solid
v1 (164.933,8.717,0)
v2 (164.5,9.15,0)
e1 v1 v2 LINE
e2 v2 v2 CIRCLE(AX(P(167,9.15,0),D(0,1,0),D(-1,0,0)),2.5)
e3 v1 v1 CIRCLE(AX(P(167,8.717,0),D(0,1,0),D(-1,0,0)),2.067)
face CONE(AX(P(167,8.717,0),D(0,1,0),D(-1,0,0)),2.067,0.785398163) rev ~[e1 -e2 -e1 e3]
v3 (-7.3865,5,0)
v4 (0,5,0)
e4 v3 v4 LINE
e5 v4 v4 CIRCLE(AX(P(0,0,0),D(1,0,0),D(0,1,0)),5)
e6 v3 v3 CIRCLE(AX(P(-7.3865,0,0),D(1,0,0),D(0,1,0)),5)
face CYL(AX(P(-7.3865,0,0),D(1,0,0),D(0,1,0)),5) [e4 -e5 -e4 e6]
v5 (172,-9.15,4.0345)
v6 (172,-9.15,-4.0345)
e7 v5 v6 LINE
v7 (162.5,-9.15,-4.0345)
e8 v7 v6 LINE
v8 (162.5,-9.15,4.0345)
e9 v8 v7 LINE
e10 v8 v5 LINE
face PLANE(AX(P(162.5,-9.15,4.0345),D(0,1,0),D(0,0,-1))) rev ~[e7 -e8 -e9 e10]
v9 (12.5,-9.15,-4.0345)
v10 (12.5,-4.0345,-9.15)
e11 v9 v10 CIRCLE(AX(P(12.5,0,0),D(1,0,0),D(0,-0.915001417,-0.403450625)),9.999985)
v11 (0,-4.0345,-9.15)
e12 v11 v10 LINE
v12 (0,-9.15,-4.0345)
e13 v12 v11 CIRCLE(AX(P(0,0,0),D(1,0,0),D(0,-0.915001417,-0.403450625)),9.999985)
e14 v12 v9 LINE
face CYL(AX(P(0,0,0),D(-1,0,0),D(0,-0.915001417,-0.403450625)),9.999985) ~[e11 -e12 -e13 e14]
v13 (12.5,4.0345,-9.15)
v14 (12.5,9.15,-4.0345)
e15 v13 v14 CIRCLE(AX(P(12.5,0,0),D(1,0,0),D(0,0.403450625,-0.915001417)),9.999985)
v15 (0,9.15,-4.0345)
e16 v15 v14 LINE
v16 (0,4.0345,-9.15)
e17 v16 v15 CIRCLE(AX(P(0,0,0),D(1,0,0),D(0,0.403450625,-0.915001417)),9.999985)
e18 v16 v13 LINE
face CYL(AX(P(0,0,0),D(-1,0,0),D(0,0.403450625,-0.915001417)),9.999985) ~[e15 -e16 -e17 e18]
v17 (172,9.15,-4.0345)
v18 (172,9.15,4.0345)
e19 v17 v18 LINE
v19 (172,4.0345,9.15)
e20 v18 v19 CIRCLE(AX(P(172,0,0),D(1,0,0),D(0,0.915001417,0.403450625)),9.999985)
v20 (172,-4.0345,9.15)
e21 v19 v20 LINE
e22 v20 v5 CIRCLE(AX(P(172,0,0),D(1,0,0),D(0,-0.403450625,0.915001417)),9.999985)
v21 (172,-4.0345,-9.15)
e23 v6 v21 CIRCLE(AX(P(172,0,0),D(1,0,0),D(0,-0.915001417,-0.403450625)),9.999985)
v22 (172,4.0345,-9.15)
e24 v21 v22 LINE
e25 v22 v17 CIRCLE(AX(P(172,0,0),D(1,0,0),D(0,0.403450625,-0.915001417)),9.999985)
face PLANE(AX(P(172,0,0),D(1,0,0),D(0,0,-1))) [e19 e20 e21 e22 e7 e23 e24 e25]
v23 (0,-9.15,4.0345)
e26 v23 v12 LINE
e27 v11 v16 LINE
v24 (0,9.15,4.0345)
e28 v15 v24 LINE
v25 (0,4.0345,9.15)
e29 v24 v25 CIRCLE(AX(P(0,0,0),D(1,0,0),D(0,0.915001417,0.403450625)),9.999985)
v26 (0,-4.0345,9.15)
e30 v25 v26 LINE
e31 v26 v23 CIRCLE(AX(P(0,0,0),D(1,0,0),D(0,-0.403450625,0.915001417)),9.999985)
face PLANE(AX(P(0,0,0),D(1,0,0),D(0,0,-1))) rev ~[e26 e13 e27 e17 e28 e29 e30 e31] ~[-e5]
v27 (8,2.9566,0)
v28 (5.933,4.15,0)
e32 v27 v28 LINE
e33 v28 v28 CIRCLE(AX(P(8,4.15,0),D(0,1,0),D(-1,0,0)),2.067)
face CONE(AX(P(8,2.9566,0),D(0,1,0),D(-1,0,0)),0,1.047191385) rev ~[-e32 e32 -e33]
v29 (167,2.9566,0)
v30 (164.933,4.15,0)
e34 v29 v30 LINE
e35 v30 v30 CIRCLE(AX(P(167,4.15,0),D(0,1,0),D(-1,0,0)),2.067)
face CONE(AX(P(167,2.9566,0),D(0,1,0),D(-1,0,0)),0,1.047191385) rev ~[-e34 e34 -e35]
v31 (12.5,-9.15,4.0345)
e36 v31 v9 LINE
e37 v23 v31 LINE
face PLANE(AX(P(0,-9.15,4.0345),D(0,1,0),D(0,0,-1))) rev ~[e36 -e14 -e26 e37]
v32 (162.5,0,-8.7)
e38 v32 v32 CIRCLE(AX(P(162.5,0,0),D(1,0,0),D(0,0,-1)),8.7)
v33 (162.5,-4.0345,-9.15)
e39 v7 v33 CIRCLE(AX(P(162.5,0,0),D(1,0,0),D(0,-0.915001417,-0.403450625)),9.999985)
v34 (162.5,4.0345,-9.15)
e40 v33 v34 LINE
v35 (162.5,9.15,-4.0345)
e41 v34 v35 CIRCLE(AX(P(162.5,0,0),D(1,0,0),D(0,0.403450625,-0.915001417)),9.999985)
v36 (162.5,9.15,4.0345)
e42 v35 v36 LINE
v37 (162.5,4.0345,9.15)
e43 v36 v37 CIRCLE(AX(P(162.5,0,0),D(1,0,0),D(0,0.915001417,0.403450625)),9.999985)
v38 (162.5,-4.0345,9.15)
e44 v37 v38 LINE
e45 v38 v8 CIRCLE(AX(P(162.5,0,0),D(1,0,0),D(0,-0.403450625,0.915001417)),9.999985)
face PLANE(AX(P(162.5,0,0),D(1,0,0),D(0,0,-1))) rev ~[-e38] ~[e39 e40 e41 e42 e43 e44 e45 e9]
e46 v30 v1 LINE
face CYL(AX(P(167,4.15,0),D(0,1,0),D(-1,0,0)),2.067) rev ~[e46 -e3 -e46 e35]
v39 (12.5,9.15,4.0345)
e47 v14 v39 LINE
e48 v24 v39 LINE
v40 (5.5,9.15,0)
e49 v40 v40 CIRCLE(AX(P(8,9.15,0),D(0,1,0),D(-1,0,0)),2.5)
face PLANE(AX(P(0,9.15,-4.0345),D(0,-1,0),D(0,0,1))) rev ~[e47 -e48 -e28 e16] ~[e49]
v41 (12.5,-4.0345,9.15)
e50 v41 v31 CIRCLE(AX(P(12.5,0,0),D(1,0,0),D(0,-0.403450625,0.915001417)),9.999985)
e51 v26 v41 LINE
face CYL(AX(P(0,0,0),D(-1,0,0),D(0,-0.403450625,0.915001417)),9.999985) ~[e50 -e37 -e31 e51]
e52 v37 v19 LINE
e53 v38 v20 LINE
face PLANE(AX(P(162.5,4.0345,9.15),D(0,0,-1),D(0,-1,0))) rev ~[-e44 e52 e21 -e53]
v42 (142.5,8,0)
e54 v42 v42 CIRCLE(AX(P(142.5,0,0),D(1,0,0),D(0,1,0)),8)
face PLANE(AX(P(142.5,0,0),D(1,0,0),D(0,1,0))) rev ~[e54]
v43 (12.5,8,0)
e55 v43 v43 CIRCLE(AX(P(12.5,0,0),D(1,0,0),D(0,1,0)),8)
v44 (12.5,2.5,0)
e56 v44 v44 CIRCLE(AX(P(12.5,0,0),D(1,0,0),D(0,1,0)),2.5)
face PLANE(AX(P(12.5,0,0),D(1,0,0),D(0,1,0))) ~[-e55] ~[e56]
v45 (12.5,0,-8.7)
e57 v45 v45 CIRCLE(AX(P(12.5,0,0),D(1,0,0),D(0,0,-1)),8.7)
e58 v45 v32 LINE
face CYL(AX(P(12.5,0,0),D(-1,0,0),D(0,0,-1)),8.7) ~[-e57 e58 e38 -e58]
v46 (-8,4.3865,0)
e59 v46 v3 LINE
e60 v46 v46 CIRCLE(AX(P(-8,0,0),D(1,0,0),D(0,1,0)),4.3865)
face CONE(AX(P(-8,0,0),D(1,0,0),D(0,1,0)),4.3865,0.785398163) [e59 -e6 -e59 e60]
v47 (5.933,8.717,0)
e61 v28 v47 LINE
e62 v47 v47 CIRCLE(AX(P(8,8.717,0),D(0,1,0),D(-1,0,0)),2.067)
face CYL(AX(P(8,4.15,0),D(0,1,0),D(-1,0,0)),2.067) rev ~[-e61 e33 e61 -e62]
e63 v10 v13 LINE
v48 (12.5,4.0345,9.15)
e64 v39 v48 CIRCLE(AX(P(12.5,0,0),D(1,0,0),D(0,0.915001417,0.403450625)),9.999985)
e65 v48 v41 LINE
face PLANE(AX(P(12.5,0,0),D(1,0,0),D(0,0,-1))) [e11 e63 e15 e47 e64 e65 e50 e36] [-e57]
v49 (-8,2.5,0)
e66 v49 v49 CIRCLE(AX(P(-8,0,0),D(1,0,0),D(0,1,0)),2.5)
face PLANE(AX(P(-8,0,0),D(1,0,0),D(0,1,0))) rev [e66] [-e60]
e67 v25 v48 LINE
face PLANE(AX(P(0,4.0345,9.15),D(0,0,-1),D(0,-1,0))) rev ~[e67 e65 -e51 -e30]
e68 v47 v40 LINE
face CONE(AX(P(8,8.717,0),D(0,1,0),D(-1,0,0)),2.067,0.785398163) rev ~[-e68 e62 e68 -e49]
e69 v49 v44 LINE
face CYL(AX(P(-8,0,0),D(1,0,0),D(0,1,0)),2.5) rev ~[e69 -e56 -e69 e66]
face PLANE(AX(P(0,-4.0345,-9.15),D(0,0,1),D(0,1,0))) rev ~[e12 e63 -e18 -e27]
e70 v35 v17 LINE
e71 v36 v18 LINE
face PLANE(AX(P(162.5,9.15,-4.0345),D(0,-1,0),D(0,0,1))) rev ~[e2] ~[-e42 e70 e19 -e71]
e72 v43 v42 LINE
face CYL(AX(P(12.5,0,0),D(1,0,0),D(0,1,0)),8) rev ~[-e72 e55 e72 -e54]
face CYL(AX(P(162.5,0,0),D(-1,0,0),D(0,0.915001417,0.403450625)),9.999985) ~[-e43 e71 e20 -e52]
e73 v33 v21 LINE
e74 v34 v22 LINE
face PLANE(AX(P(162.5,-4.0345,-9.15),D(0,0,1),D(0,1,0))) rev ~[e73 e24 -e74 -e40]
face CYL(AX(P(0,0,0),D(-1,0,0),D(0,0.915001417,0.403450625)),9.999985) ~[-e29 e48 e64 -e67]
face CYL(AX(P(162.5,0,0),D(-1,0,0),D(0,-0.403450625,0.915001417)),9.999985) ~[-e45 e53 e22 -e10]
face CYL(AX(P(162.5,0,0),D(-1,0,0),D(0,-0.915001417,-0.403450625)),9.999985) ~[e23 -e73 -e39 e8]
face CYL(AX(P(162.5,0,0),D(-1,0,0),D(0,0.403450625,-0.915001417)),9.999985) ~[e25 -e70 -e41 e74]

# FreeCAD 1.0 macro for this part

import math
import FreeCAD as App
import Part
import Sketcher

V = App.Vector
Q = App.Units.Quantity

doc = App.newDocument("Part")
body = doc.addObject("PartDesign::Body", "Body")

# Sketch on XY plane
sketch1 = body.newObject("Sketcher::SketchObject", "Sketch")
sketch1.AttachmentSupport = (doc.getObject("XY_Plane"), [""])
sketch1.MapMode = "FlatFace"
sketch1.addGeometry(Part.LineSegment(V(-8, 0, 0), V(0, 0, 0)), False)
sketch1.addGeometry(Part.LineSegment(V(0, 0, 0), V(0, 5, 0)), False)
sketch1.addGeometry(Part.LineSegment(V(0, 5, 0), V(-7.4, 5, 0)), False)
sketch1.addGeometry(Part.LineSegment(V(-7.4, 5, 0), V(-8, 4.4, 0)), False)
sketch1.addGeometry(Part.LineSegment(V(-8, 4.4, 0), V(-8, 0, 0)), False)
sketch1.addConstraint(Sketcher.Constraint("Coincident", 0, 2, 1, 1))
sketch1.addConstraint(Sketcher.Constraint("Coincident", 1, 2, 2, 1))
sketch1.addConstraint(Sketcher.Constraint("Coincident", 2, 2, 3, 1))
sketch1.addConstraint(Sketcher.Constraint("Coincident", 3, 2, 4, 1))
sketch1.addConstraint(Sketcher.Constraint("Coincident", 4, 2, 0, 1))
sketch1.addConstraint(Sketcher.Constraint("Horizontal", 0))
sketch1.addConstraint(Sketcher.Constraint("Vertical", 1))
sketch1.addConstraint(Sketcher.Constraint("Horizontal", 2))
sketch1.addConstraint(Sketcher.Constraint("Vertical", 4))
sketch1.addConstraint(Sketcher.Constraint("Coincident", 0, 2, -1, 1))
sketch1.addConstraint(Sketcher.Constraint("DistanceX", 0, 1, 0, 2, Q("8 mm")))
sketch1.addConstraint(Sketcher.Constraint("DistanceY", 1, 1, 1, 2, Q("5 mm")))
sketch1.addConstraint(Sketcher.Constraint("Angle", 3, Q("-135 deg")))
sketch1.addConstraint(Sketcher.Constraint("DistanceX", 2, 2, 2, 1, Q("7.3865 mm")))
revolution = body.newObject("PartDesign::Revolution", "Revolution")
revolution.Profile = sketch1
revolution.ReferenceAxis = (sketch1, ["H_Axis"])
revolution.Angle = 360

# Sketch on YZ plane
sketch2 = body.newObject("Sketcher::SketchObject", "Sketch001")
sketch2.AttachmentSupport = (doc.getObject("YZ_Plane"), [""])
sketch2.MapMode = "FlatFace"
sketch2.addGeometry(Part.ArcOfCircle(Part.Circle(V(0, 0, 0), V(0, 0, 1), 10), math.radians(24), math.radians(66)), False)
sketch2.addGeometry(Part.LineSegment(V(4, 9, 0), V(-4, 9, 0)), False)
sketch2.addGeometry(Part.ArcOfCircle(Part.Circle(V(0, 0, 0), V(0, 0, 1), 10), math.radians(114), math.radians(156)), False)
sketch2.addGeometry(Part.LineSegment(V(-9, 4, 0), V(-9, -4, 0)), False)
sketch2.addGeometry(Part.ArcOfCircle(Part.Circle(V(0, 0, 0), V(0, 0, 1), 10), math.radians(-156), math.radians(-114)), False)
sketch2.addGeometry(Part.LineSegment(V(-4, -9, 0), V(4, -9, 0)), False)
sketch2.addGeometry(Part.ArcOfCircle(Part.Circle(V(0, 0, 0), V(0, 0, 1), 10), math.radians(-66), math.radians(-24)), False)
sketch2.addGeometry(Part.LineSegment(V(9, -4, 0), V(9, 4, 0)), False)
sketch2.addConstraint(Sketcher.Constraint("Coincident", 0, 2, 1, 1))
sketch2.addConstraint(Sketcher.Constraint("Coincident", 1, 2, 2, 1))
sketch2.addConstraint(Sketcher.Constraint("Coincident", 2, 2, 3, 1))
sketch2.addConstraint(Sketcher.Constraint("Coincident", 3, 2, 4, 1))
sketch2.addConstraint(Sketcher.Constraint("Coincident", 4, 2, 5, 1))
sketch2.addConstraint(Sketcher.Constraint("Coincident", 5, 2, 6, 1))
sketch2.addConstraint(Sketcher.Constraint("Coincident", 6, 2, 7, 1))
sketch2.addConstraint(Sketcher.Constraint("Coincident", 7, 2, 0, 1))
sketch2.addConstraint(Sketcher.Constraint("Horizontal", 1))
sketch2.addConstraint(Sketcher.Constraint("Vertical", 3))
sketch2.addConstraint(Sketcher.Constraint("Horizontal", 5))
sketch2.addConstraint(Sketcher.Constraint("Vertical", 7))
sketch2.addConstraint(Sketcher.Constraint("Coincident", 0, 3, -1, 1))
sketch2.addConstraint(Sketcher.Constraint("Coincident", 2, 3, -1, 1))
sketch2.addConstraint(Sketcher.Constraint("Coincident", 4, 3, -1, 1))
sketch2.addConstraint(Sketcher.Constraint("Coincident", 6, 3, -1, 1))
sketch2.addConstraint(Sketcher.Constraint("Equal", 0, 2))
sketch2.addConstraint(Sketcher.Constraint("Equal", 2, 4))
sketch2.addConstraint(Sketcher.Constraint("Equal", 4, 6))
sketch2.addConstraint(Sketcher.Constraint("Horizontal", 3, 2, 6, 2))
sketch2.addConstraint(Sketcher.Constraint("Vertical", 1, 2, 4, 2))
sketch2.addConstraint(Sketcher.Constraint("Equal", 5, 3))
sketch2.addConstraint(Sketcher.Constraint("Radius", 0, Q("10 mm")))
sketch2.addConstraint(Sketcher.Constraint("DistanceX", 1, 2, 1, 1, Q("8.069 mm")))
pad1 = body.newObject("PartDesign::Pad", "Pad")
pad1.Profile = sketch2
pad1.Length = 12.5

# Sketch on YZ plane
sketch3 = body.newObject("Sketcher::SketchObject", "Sketch002")
sketch3.AttachmentSupport = (doc.getObject("YZ_Plane"), [""])
sketch3.MapMode = "FlatFace"
sketch3.AttachmentOffset = App.Placement(V(0, 0, 12.5), App.Rotation())
sketch3.addGeometry(Part.Circle(V(0, 0, 0), V(0, 0, 1), 9), False)
sketch3.addConstraint(Sketcher.Constraint("Coincident", 0, 3, -1, 1))
sketch3.addConstraint(Sketcher.Constraint("Diameter", 0, Q("17.4 mm")))
pad2 = body.newObject("PartDesign::Pad", "Pad001")
pad2.Profile = sketch3
pad2.Length = 150

# Sketch on YZ plane
sketch4 = body.newObject("Sketcher::SketchObject", "Sketch003")
sketch4.AttachmentSupport = (doc.getObject("YZ_Plane"), [""])
sketch4.MapMode = "FlatFace"
sketch4.AttachmentOffset = App.Placement(V(0, 0, 162.5), App.Rotation())
sketch4.addGeometry(Part.ArcOfCircle(Part.Circle(V(0, 0, 0), V(0, 0, 1), 10), math.radians(24), math.radians(66)), False)
sketch4.addGeometry(Part.LineSegment(V(4, 9, 0), V(-4, 9, 0)), False)
sketch4.addGeometry(Part.ArcOfCircle(Part.Circle(V(0, 0, 0), V(0, 0, 1), 10), math.radians(114), math.radians(156)), False)
sketch4.addGeometry(Part.LineSegment(V(-9, 4, 0), V(-9, -4, 0)), False)
sketch4.addGeometry(Part.ArcOfCircle(Part.Circle(V(0, 0, 0), V(0, 0, 1), 10), math.radians(-156), math.radians(-114)), False)
sketch4.addGeometry(Part.LineSegment(V(-4, -9, 0), V(4, -9, 0)), False)
sketch4.addGeometry(Part.ArcOfCircle(Part.Circle(V(0, 0, 0), V(0, 0, 1), 10), math.radians(-66), math.radians(-24)), False)
sketch4.addGeometry(Part.LineSegment(V(9, -4, 0), V(9, 4, 0)), False)
sketch4.addConstraint(Sketcher.Constraint("Coincident", 0, 2, 1, 1))
sketch4.addConstraint(Sketcher.Constraint("Coincident", 1, 2, 2, 1))
sketch4.addConstraint(Sketcher.Constraint("Coincident", 2, 2, 3, 1))
sketch4.addConstraint(Sketcher.Constraint("Coincident", 3, 2, 4, 1))
sketch4.addConstraint(Sketcher.Constraint("Coincident", 4, 2, 5, 1))
sketch4.addConstraint(Sketcher.Constraint("Coincident", 5, 2, 6, 1))
sketch4.addConstraint(Sketcher.Constraint("Coincident", 6, 2, 7, 1))
sketch4.addConstraint(Sketcher.Constraint("Coincident", 7, 2, 0, 1))
sketch4.addConstraint(Sketcher.Constraint("Horizontal", 1))
sketch4.addConstraint(Sketcher.Constraint("Vertical", 3))
sketch4.addConstraint(Sketcher.Constraint("Horizontal", 5))
sketch4.addConstraint(Sketcher.Constraint("Vertical", 7))
sketch4.addConstraint(Sketcher.Constraint("Coincident", 0, 3, -1, 1))
sketch4.addConstraint(Sketcher.Constraint("Coincident", 2, 3, -1, 1))
sketch4.addConstraint(Sketcher.Constraint("Coincident", 4, 3, -1, 1))
sketch4.addConstraint(Sketcher.Constraint("Coincident", 6, 3, -1, 1))
sketch4.addConstraint(Sketcher.Constraint("Equal", 0, 2))
sketch4.addConstraint(Sketcher.Constraint("Equal", 2, 4))
sketch4.addConstraint(Sketcher.Constraint("Equal", 4, 6))
sketch4.addConstraint(Sketcher.Constraint("Horizontal", 3, 2, 6, 2))
sketch4.addConstraint(Sketcher.Constraint("Vertical", 1, 2, 4, 2))
sketch4.addConstraint(Sketcher.Constraint("Equal", 5, 3))
sketch4.addConstraint(Sketcher.Constraint("Radius", 0, Q("10 mm")))
sketch4.addConstraint(Sketcher.Constraint("DistanceX", 1, 2, 1, 1, Q("8.069 mm")))
pad3 = body.newObject("PartDesign::Pad", "Pad002")
pad3.Profile = sketch4
pad3.Length = 9.5

# Sketch on XY plane
sketch5 = body.newObject("Sketcher::SketchObject", "Sketch004")
sketch5.AttachmentSupport = (doc.getObject("XY_Plane"), [""])
sketch5.MapMode = "FlatFace"
sketch5.addGeometry(Part.LineSegment(V(8, 3, 0), V(8, 9.2, 0)), False)
sketch5.addGeometry(Part.LineSegment(V(8, 9.2, 0), V(5.5, 9.2, 0)), False)
sketch5.addGeometry(Part.LineSegment(V(5.5, 9.2, 0), V(5.9, 8.7, 0)), False)
sketch5.addGeometry(Part.LineSegment(V(5.9, 8.7, 0), V(5.9, 4.2, 0)), False)
sketch5.addGeometry(Part.LineSegment(V(5.9, 4.2, 0), V(8, 3, 0)), False)
sketch5.addGeometry(Part.LineSegment(V(8, 3, 0), V(8, 9.2, 0)), True)  # axis
sketch5.addConstraint(Sketcher.Constraint("Coincident", 0, 2, 1, 1))
sketch5.addConstraint(Sketcher.Constraint("Coincident", 1, 2, 2, 1))
sketch5.addConstraint(Sketcher.Constraint("Coincident", 2, 2, 3, 1))
sketch5.addConstraint(Sketcher.Constraint("Coincident", 3, 2, 4, 1))
sketch5.addConstraint(Sketcher.Constraint("Coincident", 4, 2, 0, 1))
sketch5.addConstraint(Sketcher.Constraint("Vertical", 0))
sketch5.addConstraint(Sketcher.Constraint("Horizontal", 1))
sketch5.addConstraint(Sketcher.Constraint("Vertical", 3))
sketch5.addConstraint(Sketcher.Constraint("Vertical", 5))
sketch5.addConstraint(Sketcher.Constraint("Coincident", 5, 1, 4, 2))
sketch5.addConstraint(Sketcher.Constraint("Horizontal", 1, 2, 5, 2))
sketch5.addConstraint(Sketcher.Constraint("Angle", 2, Q("-45 deg")))
sketch5.addConstraint(Sketcher.Constraint("Angle", 4, Q("-30.0004 deg")))
sketch5.addConstraint(Sketcher.Constraint("DistanceX", 1, 2, 1, 1, Q("2.5 mm")))
sketch5.addConstraint(Sketcher.Constraint("DistanceX", -1, 1, 0, 2, Q("8 mm")))
sketch5.addConstraint(Sketcher.Constraint("DistanceY", 3, 2, 1, 2, Q("5 mm")))
sketch5.addConstraint(Sketcher.Constraint("DistanceY", 3, 2, 3, 1, Q("4.567 mm")))
sketch5.addConstraint(Sketcher.Constraint("DistanceY", -1, 1, 0, 2, Q("9.15 mm")))
groove = body.newObject("PartDesign::Groove", "Groove")
groove.Profile = sketch5
groove.ReferenceAxis = (sketch5, ["Axis0"])
groove.Angle = 360

# Sketch on XY plane
sketch6 = body.newObject("Sketcher::SketchObject", "Sketch005")
sketch6.AttachmentSupport = (doc.getObject("XY_Plane"), [""])
sketch6.MapMode = "FlatFace"
sketch6.addGeometry(Part.LineSegment(V(167, 3, 0), V(167, 9.2, 0)), False)
sketch6.addGeometry(Part.LineSegment(V(167, 9.2, 0), V(164.5, 9.2, 0)), False)
sketch6.addGeometry(Part.LineSegment(V(164.5, 9.2, 0), V(164.9, 8.7, 0)), False)
sketch6.addGeometry(Part.LineSegment(V(164.9, 8.7, 0), V(164.9, 4.2, 0)), False)
sketch6.addGeometry(Part.LineSegment(V(164.9, 4.2, 0), V(167, 3, 0)), False)
sketch6.addGeometry(Part.LineSegment(V(167, 3, 0), V(167, 9.2, 0)), True)  # axis
sketch6.addConstraint(Sketcher.Constraint("Coincident", 0, 2, 1, 1))
sketch6.addConstraint(Sketcher.Constraint("Coincident", 1, 2, 2, 1))
sketch6.addConstraint(Sketcher.Constraint("Coincident", 2, 2, 3, 1))
sketch6.addConstraint(Sketcher.Constraint("Coincident", 3, 2, 4, 1))
sketch6.addConstraint(Sketcher.Constraint("Coincident", 4, 2, 0, 1))
sketch6.addConstraint(Sketcher.Constraint("Vertical", 0))
sketch6.addConstraint(Sketcher.Constraint("Horizontal", 1))
sketch6.addConstraint(Sketcher.Constraint("Vertical", 3))
sketch6.addConstraint(Sketcher.Constraint("Vertical", 5))
sketch6.addConstraint(Sketcher.Constraint("Coincident", 5, 1, 4, 2))
sketch6.addConstraint(Sketcher.Constraint("Horizontal", 1, 2, 5, 2))
sketch6.addConstraint(Sketcher.Constraint("Angle", 2, Q("-45 deg")))
sketch6.addConstraint(Sketcher.Constraint("Angle", 4, Q("-30.0004 deg")))
sketch6.addConstraint(Sketcher.Constraint("DistanceX", 1, 2, 1, 1, Q("2.5 mm")))
sketch6.addConstraint(Sketcher.Constraint("DistanceX", -1, 1, 0, 2, Q("167 mm")))
sketch6.addConstraint(Sketcher.Constraint("DistanceY", 3, 2, 1, 2, Q("5 mm")))
sketch6.addConstraint(Sketcher.Constraint("DistanceY", 3, 2, 3, 1, Q("4.567 mm")))
sketch6.addConstraint(Sketcher.Constraint("DistanceY", -1, 1, 0, 2, Q("9.15 mm")))
groove2 = body.newObject("PartDesign::Groove", "Groove001")
groove2.Profile = sketch6
groove2.ReferenceAxis = (sketch6, ["Axis0"])
groove2.Angle = 360

# Sketch on XY plane
sketch7 = body.newObject("Sketcher::SketchObject", "Sketch006")
sketch7.AttachmentSupport = (doc.getObject("XY_Plane"), [""])
sketch7.MapMode = "FlatFace"
sketch7.addGeometry(Part.LineSegment(V(-8, 0, 0), V(142.5, 0, 0)), False)
sketch7.addGeometry(Part.LineSegment(V(142.5, 0, 0), V(142.5, 8, 0)), False)
sketch7.addGeometry(Part.LineSegment(V(142.5, 8, 0), V(12.5, 8, 0)), False)
sketch7.addGeometry(Part.LineSegment(V(12.5, 8, 0), V(12.5, 2.5, 0)), False)
sketch7.addGeometry(Part.LineSegment(V(12.5, 2.5, 0), V(-8, 2.5, 0)), False)
sketch7.addGeometry(Part.LineSegment(V(-8, 2.5, 0), V(-8, 0, 0)), False)
sketch7.addConstraint(Sketcher.Constraint("Coincident", 0, 2, 1, 1))
sketch7.addConstraint(Sketcher.Constraint("Coincident", 1, 2, 2, 1))
sketch7.addConstraint(Sketcher.Constraint("Coincident", 2, 2, 3, 1))
sketch7.addConstraint(Sketcher.Constraint("Coincident", 3, 2, 4, 1))
sketch7.addConstraint(Sketcher.Constraint("Coincident", 4, 2, 5, 1))
sketch7.addConstraint(Sketcher.Constraint("Coincident", 5, 2, 0, 1))
sketch7.addConstraint(Sketcher.Constraint("Horizontal", 0))
sketch7.addConstraint(Sketcher.Constraint("Vertical", 1))
sketch7.addConstraint(Sketcher.Constraint("Horizontal", 2))
sketch7.addConstraint(Sketcher.Constraint("Vertical", 3))
sketch7.addConstraint(Sketcher.Constraint("Horizontal", 4))
sketch7.addConstraint(Sketcher.Constraint("Vertical", 5))
sketch7.addConstraint(Sketcher.Constraint("PointOnObject", 0, 2, -1))
sketch7.addConstraint(Sketcher.Constraint("DistanceX", 2, 2, 2, 1, Q("130 mm")))
sketch7.addConstraint(Sketcher.Constraint("DistanceY", 1, 1, 1, 2, Q("8 mm")))
sketch7.addConstraint(Sketcher.Constraint("DistanceX", 0, 1, 0, 2, Q("150.5 mm")))
sketch7.addConstraint(Sketcher.Constraint("DistanceY", 3, 2, 3, 1, Q("5.5 mm")))
sketch7.addConstraint(Sketcher.Constraint("DistanceX", 4, 2, -1, 1, Q("8 mm")))
groove3 = body.newObject("PartDesign::Groove", "Groove002")
groove3.Profile = sketch7
groove3.ReferenceAxis = (sketch7, ["H_Axis"])
groove3.Angle = 360

doc.recompute()
